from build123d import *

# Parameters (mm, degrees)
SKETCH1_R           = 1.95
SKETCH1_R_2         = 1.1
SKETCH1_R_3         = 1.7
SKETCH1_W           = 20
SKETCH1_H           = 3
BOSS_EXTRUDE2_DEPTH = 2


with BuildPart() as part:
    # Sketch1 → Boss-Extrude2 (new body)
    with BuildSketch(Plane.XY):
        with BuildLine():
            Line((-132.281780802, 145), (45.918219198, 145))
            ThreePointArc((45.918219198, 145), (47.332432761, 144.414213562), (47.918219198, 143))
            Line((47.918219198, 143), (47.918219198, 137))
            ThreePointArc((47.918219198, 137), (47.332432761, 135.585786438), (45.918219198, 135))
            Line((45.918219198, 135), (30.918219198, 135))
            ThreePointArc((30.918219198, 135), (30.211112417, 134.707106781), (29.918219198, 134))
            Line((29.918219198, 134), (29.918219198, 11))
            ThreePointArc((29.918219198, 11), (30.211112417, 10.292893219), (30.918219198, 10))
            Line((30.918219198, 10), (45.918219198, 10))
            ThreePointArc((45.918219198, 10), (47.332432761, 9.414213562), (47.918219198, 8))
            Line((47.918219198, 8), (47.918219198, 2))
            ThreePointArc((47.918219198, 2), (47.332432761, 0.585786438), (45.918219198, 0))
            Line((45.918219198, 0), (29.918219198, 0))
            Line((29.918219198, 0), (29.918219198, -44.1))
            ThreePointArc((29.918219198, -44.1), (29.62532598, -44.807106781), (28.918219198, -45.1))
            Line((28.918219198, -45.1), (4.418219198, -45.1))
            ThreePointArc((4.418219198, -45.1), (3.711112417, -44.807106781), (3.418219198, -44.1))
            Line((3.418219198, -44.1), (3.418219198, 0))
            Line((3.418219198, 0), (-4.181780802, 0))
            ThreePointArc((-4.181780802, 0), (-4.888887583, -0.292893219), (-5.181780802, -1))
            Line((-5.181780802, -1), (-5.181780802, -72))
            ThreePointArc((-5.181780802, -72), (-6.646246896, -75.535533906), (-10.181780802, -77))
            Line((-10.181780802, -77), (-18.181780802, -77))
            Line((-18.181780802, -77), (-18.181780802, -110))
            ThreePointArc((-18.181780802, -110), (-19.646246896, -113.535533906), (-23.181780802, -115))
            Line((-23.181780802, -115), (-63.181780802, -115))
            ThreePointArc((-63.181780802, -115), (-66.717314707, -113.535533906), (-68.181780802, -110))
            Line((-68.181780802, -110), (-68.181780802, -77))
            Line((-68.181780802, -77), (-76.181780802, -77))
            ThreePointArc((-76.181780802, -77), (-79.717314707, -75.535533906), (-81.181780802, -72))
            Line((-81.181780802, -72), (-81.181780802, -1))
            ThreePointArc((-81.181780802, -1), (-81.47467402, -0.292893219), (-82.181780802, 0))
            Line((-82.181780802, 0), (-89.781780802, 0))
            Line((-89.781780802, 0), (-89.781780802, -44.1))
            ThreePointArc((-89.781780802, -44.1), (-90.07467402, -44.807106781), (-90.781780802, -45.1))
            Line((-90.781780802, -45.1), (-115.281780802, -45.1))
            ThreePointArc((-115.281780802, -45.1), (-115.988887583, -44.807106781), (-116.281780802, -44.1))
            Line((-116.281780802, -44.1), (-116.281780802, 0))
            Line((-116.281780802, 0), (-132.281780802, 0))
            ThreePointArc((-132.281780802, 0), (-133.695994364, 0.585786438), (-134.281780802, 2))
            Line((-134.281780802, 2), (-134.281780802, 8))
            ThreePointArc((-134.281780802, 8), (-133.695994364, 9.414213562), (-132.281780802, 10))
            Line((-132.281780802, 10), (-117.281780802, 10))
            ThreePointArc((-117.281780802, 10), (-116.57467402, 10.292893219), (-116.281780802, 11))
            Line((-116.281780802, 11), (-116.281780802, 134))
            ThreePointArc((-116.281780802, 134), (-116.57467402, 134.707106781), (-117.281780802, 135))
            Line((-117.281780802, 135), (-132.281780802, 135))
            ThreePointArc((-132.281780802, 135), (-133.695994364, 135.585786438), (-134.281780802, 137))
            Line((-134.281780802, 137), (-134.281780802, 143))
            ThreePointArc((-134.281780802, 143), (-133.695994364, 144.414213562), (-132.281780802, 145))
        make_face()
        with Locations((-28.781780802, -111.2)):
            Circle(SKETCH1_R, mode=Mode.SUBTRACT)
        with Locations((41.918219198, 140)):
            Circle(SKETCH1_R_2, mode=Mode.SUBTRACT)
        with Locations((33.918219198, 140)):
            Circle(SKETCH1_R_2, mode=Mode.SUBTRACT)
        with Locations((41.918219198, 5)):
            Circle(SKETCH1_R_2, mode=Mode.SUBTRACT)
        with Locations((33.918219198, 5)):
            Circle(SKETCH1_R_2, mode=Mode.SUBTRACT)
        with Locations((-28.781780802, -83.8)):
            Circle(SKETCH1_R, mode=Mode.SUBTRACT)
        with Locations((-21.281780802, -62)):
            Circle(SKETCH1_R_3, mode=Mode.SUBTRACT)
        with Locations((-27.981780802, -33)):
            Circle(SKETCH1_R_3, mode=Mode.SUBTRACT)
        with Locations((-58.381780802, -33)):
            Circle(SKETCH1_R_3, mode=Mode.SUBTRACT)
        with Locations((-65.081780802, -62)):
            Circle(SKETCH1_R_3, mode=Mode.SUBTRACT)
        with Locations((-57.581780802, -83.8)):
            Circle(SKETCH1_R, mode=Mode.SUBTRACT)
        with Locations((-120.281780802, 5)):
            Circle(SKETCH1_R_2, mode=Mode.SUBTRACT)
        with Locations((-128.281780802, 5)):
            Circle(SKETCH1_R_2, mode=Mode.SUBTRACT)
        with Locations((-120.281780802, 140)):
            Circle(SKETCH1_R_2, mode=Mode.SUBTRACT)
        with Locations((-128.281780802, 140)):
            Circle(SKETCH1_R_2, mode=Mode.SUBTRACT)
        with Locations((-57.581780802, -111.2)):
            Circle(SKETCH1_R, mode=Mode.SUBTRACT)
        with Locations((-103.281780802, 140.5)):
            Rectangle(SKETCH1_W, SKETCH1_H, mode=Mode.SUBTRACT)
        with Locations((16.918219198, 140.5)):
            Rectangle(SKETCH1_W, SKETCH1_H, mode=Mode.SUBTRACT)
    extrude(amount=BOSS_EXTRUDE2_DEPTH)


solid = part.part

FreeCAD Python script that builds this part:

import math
import FreeCAD as App
import Part
import Sketcher
from FreeCAD import Vector
Q = App.Units.Quantity

doc = App.newDocument("Part")
body = doc.addObject("PartDesign::Body", "Body")

sketch1 = body.newObject("Sketcher::SketchObject", "Sketch")
sketch1.AttachmentSupport = (doc.getObject("XY_Plane"), [""])
sketch1.MapMode = "FlatFace"
sketch1.addGeometry([
    Part.LineSegment(Vector(45.9, 145, 0), Vector(-132.3, 145, 0)),
    Part.ArcOfCircle(Part.Circle(Vector(-132.3, 143, 0), Vector(0, 0, 1), 2), math.radians(90), math.radians(180)),
    Part.LineSegment(Vector(-134.3, 143, 0), Vector(-134.3, 137, 0)),
    Part.ArcOfCircle(Part.Circle(Vector(-132.3, 137, 0), Vector(0, 0, 1), 2), math.radians(-180), math.radians(-90)),
    Part.LineSegment(Vector(-132.3, 135, 0), Vector(-117.3, 135, 0)),
    Part.ArcOfCircle(Part.Circle(Vector(-117.3, 134, 0), Vector(0, 0, 1), 1), math.radians(0), math.radians(90)),
    Part.LineSegment(Vector(-116.3, 134, 0), Vector(-116.3, 11, 0)),
    Part.ArcOfCircle(Part.Circle(Vector(-117.3, 11, 0), Vector(0, 0, 1), 1), math.radians(-90), math.radians(0)),
    Part.LineSegment(Vector(-117.3, 10, 0), Vector(-132.3, 10, 0)),
    Part.ArcOfCircle(Part.Circle(Vector(-132.3, 8, 0), Vector(0, 0, 1), 2), math.radians(90), math.radians(180)),
    Part.LineSegment(Vector(-134.3, 8, 0), Vector(-134.3, 2, 0)),
    Part.ArcOfCircle(Part.Circle(Vector(-132.3, 2, 0), Vector(0, 0, 1), 2), math.radians(-180), math.radians(-90)),
    Part.LineSegment(Vector(-132.3, 0, 0), Vector(-116.3, 0, 0)),
    Part.LineSegment(Vector(-116.3, 0, 0), Vector(-116.3, -44.1, 0)),
    Part.ArcOfCircle(Part.Circle(Vector(-115.3, -44.1, 0), Vector(0, 0, 1), 1), math.radians(-180), math.radians(-90)),
    Part.LineSegment(Vector(-115.3, -45.1, 0), Vector(-90.8, -45.1, 0)),
    Part.ArcOfCircle(Part.Circle(Vector(-90.8, -44.1, 0), Vector(0, 0, 1), 1), math.radians(-90), math.radians(0)),
    Part.LineSegment(Vector(-89.8, -44.1, 0), Vector(-89.8, 0, 0)),
    Part.LineSegment(Vector(-89.8, 0, 0), Vector(-82.2, 0, 0)),
    Part.ArcOfCircle(Part.Circle(Vector(-82.2, -1, 0), Vector(0, 0, 1), 1), math.radians(0), math.radians(90)),
    Part.LineSegment(Vector(-81.2, -1, 0), Vector(-81.2, -72, 0)),
    Part.ArcOfCircle(Part.Circle(Vector(-76.2, -72, 0), Vector(0, 0, 1), 5), math.radians(-180), math.radians(-90)),
    Part.LineSegment(Vector(-76.2, -77, 0), Vector(-68.2, -77, 0)),
    Part.LineSegment(Vector(-68.2, -77, 0), Vector(-68.2, -110, 0)),
    Part.ArcOfCircle(Part.Circle(Vector(-63.2, -110, 0), Vector(0, 0, 1), 5), math.radians(-180), math.radians(-90)),
    Part.LineSegment(Vector(-63.2, -115, 0), Vector(-23.2, -115, 0)),
    Part.ArcOfCircle(Part.Circle(Vector(-23.2, -110, 0), Vector(0, 0, 1), 5), math.radians(-90), math.radians(0)),
    Part.LineSegment(Vector(-18.2, -110, 0), Vector(-18.2, -77, 0)),
    Part.LineSegment(Vector(-18.2, -77, 0), Vector(-10.2, -77, 0)),
    Part.ArcOfCircle(Part.Circle(Vector(-10.2, -72, 0), Vector(0, 0, 1), 5), math.radians(-90), math.radians(0)),
    Part.LineSegment(Vector(-5.2, -72, 0), Vector(-5.2, -1, 0)),
    Part.ArcOfCircle(Part.Circle(Vector(-4.2, -1, 0), Vector(0, 0, 1), 1), math.radians(90), math.radians(180)),
    Part.LineSegment(Vector(-4.2, 0, 0), Vector(3.4, 0, 0)),
    Part.LineSegment(Vector(3.4, 0, 0), Vector(3.4, -44.1, 0)),
    Part.ArcOfCircle(Part.Circle(Vector(4.4, -44.1, 0), Vector(0, 0, 1), 1), math.radians(-180), math.radians(-90)),
    Part.LineSegment(Vector(4.4, -45.1, 0), Vector(28.9, -45.1, 0)),
    Part.ArcOfCircle(Part.Circle(Vector(28.9, -44.1, 0), Vector(0, 0, 1), 1), math.radians(-90), math.radians(0)),
    Part.LineSegment(Vector(29.9, -44.1, 0), Vector(29.9, 0, 0)),
    Part.LineSegment(Vector(29.9, 0, 0), Vector(45.9, 0, 0)),
    Part.ArcOfCircle(Part.Circle(Vector(45.9, 2, 0), Vector(0, 0, 1), 2), math.radians(-90), math.radians(0)),
    Part.LineSegment(Vector(47.9, 2, 0), Vector(47.9, 8, 0)),
    Part.ArcOfCircle(Part.Circle(Vector(45.9, 8, 0), Vector(0, 0, 1), 2), math.radians(0), math.radians(90)),
    Part.LineSegment(Vector(45.9, 10, 0), Vector(30.9, 10, 0)),
    Part.ArcOfCircle(Part.Circle(Vector(30.9, 11, 0), Vector(0, 0, 1), 1), math.radians(-180), math.radians(-90)),
    Part.LineSegment(Vector(29.9, 11, 0), Vector(29.9, 134, 0)),
    Part.ArcOfCircle(Part.Circle(Vector(30.9, 134, 0), Vector(0, 0, 1), 1), math.radians(90), math.radians(180)),
    Part.LineSegment(Vector(30.9, 135, 0), Vector(45.9, 135, 0)),
    Part.ArcOfCircle(Part.Circle(Vector(45.9, 137, 0), Vector(0, 0, 1), 2), math.radians(-90), math.radians(0)),
    Part.LineSegment(Vector(47.9, 137, 0), Vector(47.9, 143, 0)),
    Part.ArcOfCircle(Part.Circle(Vector(45.9, 143, 0), Vector(0, 0, 1), 2), math.radians(0), math.radians(90)),
    Part.Circle(Vector(-28.8, -111.2, 0), Vector(0, 0, 1), 1.9),
    Part.Circle(Vector(-28.8, -83.8, 0), Vector(0, 0, 1), 1.9),
    Part.Circle(Vector(-21.3, -62, 0), Vector(0, 0, 1), 1.7),
    Part.Circle(Vector(41.9, 5, 0), Vector(0, 0, 1), 1.1),
    Part.Circle(Vector(33.9, 5, 0), Vector(0, 0, 1), 1.1),
    Part.Circle(Vector(-28, -33, 0), Vector(0, 0, 1), 1.7),
    Part.Circle(Vector(-57.6, -111.2, 0), Vector(0, 0, 1), 1.9),
    Part.Circle(Vector(-57.6, -83.8, 0), Vector(0, 0, 1), 1.9),
    Part.Circle(Vector(-65.1, -62, 0), Vector(0, 0, 1), 1.7),
    Part.Circle(Vector(-58.4, -33, 0), Vector(0, 0, 1), 1.7),
    Part.Circle(Vector(-120.3, 5, 0), Vector(0, 0, 1), 1.1),
    Part.Circle(Vector(-128.3, 5, 0), Vector(0, 0, 1), 1.1),
    Part.Circle(Vector(41.9, 140, 0), Vector(0, 0, 1), 1.1),
    Part.Circle(Vector(33.9, 140, 0), Vector(0, 0, 1), 1.1),
    Part.LineSegment(Vector(6.9, 139, 0), Vector(6.9, 142, 0)),
    Part.LineSegment(Vector(6.9, 142, 0), Vector(26.9, 142, 0)),
    Part.LineSegment(Vector(26.9, 142, 0), Vector(26.9, 139, 0)),
    Part.LineSegment(Vector(26.9, 139, 0), Vector(6.9, 139, 0)),
    Part.LineSegment(Vector(-113.3, 139, 0), Vector(-113.3, 142, 0)),
    Part.LineSegment(Vector(-113.3, 142, 0), Vector(-93.3, 142, 0)),
    Part.LineSegment(Vector(-93.3, 142, 0), Vector(-93.3, 139, 0)),
    Part.LineSegment(Vector(-93.3, 139, 0), Vector(-113.3, 139, 0)),
    Part.Circle(Vector(-120.3, 140, 0), Vector(0, 0, 1), 1.1),
    Part.Circle(Vector(-128.3, 140, 0), Vector(0, 0, 1), 1.1),
], False)
sketch1.addConstraint([
    Sketcher.Constraint("Tangent", 0, 2, 1, 1),
    Sketcher.Constraint("Tangent", 1, 2, 2, 1),
    Sketcher.Constraint("Tangent", 2, 2, 3, 1),
    Sketcher.Constraint("Tangent", 3, 2, 4, 1),
    Sketcher.Constraint("Tangent", 4, 2, 5, 2),
    Sketcher.Constraint("Tangent", 5, 1, 6, 1),
    Sketcher.Constraint("Tangent", 6, 2, 7, 2),
    Sketcher.Constraint("Tangent", 7, 1, 8, 1),
    Sketcher.Constraint("Tangent", 8, 2, 9, 1),
    Sketcher.Constraint("Tangent", 9, 2, 10, 1),
    Sketcher.Constraint("Tangent", 10, 2, 11, 1),
    Sketcher.Constraint("Tangent", 11, 2, 12, 1),
    Sketcher.Constraint("Coincident", 12, 2, 13, 1),
    Sketcher.Constraint("Tangent", 13, 2, 14, 1),
    Sketcher.Constraint("Tangent", 14, 2, 15, 1),
    Sketcher.Constraint("Tangent", 15, 2, 16, 1),
    Sketcher.Constraint("Tangent", 16, 2, 17, 1),
    Sketcher.Constraint("Coincident", 17, 2, 18, 1),
    Sketcher.Constraint("Tangent", 18, 2, 19, 2),
    Sketcher.Constraint("Tangent", 19, 1, 20, 1),
    Sketcher.Constraint("Tangent", 20, 2, 21, 1),
    Sketcher.Constraint("Tangent", 21, 2, 22, 1),
    Sketcher.Constraint("Coincident", 22, 2, 23, 1),
    Sketcher.Constraint("Tangent", 23, 2, 24, 1),
    Sketcher.Constraint("Tangent", 24, 2, 25, 1),
    Sketcher.Constraint("Tangent", 25, 2, 26, 1),
    Sketcher.Constraint("Tangent", 26, 2, 27, 1),
    Sketcher.Constraint("Coincident", 27, 2, 28, 1),
    Sketcher.Constraint("Tangent", 28, 2, 29, 1),
    Sketcher.Constraint("Tangent", 29, 2, 30, 1),
    Sketcher.Constraint("Tangent", 30, 2, 31, 2),
    Sketcher.Constraint("Tangent", 31, 1, 32, 1),
    Sketcher.Constraint("Coincident", 32, 2, 33, 1),
    Sketcher.Constraint("Tangent", 33, 2, 34, 1),
    Sketcher.Constraint("Tangent", 34, 2, 35, 1),
    Sketcher.Constraint("Tangent", 35, 2, 36, 1),
    Sketcher.Constraint("Tangent", 36, 2, 37, 1),
    Sketcher.Constraint("Coincident", 37, 2, 38, 1),
    Sketcher.Constraint("Tangent", 38, 2, 39, 1),
    Sketcher.Constraint("Tangent", 39, 2, 40, 1),
    Sketcher.Constraint("Tangent", 40, 2, 41, 1),
    Sketcher.Constraint("Tangent", 41, 2, 42, 1),
    Sketcher.Constraint("Tangent", 42, 2, 43, 2),
    Sketcher.Constraint("Tangent", 43, 1, 44, 1),
    Sketcher.Constraint("Tangent", 44, 2, 45, 2),
    Sketcher.Constraint("Tangent", 45, 1, 46, 1),
    Sketcher.Constraint("Tangent", 46, 2, 47, 1),
    Sketcher.Constraint("Tangent", 47, 2, 48, 1),
    Sketcher.Constraint("Tangent", 48, 2, 49, 1),
    Sketcher.Constraint("Tangent", 49, 2, 0, 1),
    Sketcher.Constraint("Coincident", 64, 2, 65, 1),
    Sketcher.Constraint("Coincident", 65, 2, 66, 1),
    Sketcher.Constraint("Coincident", 66, 2, 67, 1),
    Sketcher.Constraint("Coincident", 67, 2, 64, 1),
    Sketcher.Constraint("Coincident", 68, 2, 69, 1),
    Sketcher.Constraint("Coincident", 69, 2, 70, 1),
    Sketcher.Constraint("Coincident", 70, 2, 71, 1),
    Sketcher.Constraint("Coincident", 71, 2, 68, 1),
    Sketcher.Constraint("Horizontal", 0),
    Sketcher.Constraint("Vertical", 2),
    Sketcher.Constraint("Horizontal", 4),
    Sketcher.Constraint("Vertical", 6),
    Sketcher.Constraint("Horizontal", 8),
    Sketcher.Constraint("Vertical", 10),
    Sketcher.Constraint("Horizontal", 12),
    Sketcher.Constraint("Vertical", 13),
    Sketcher.Constraint("Horizontal", 15),
    Sketcher.Constraint("Vertical", 17),
    Sketcher.Constraint("Horizontal", 18),
    Sketcher.Constraint("Vertical", 20),
    Sketcher.Constraint("Horizontal", 22),
    Sketcher.Constraint("Vertical", 23),
    Sketcher.Constraint("Horizontal", 25),
    Sketcher.Constraint("Vertical", 27),
    Sketcher.Constraint("Horizontal", 28),
    Sketcher.Constraint("Vertical", 30),
    Sketcher.Constraint("Horizontal", 32),
    Sketcher.Constraint("Vertical", 33),
    Sketcher.Constraint("Horizontal", 35),
    Sketcher.Constraint("Vertical", 37),
    Sketcher.Constraint("Horizontal", 38),
    Sketcher.Constraint("Vertical", 40),
    Sketcher.Constraint("Horizontal", 42),
    Sketcher.Constraint("Vertical", 44),
    Sketcher.Constraint("Horizontal", 46),
    Sketcher.Constraint("Vertical", 48),
    Sketcher.Constraint("Vertical", 64),
    Sketcher.Constraint("Horizontal", 65),
    Sketcher.Constraint("Vertical", 66),
    Sketcher.Constraint("Horizontal", 67),
    Sketcher.Constraint("Vertical", 68),
    Sketcher.Constraint("Horizontal", 69),
    Sketcher.Constraint("Vertical", 70),
    Sketcher.Constraint("Horizontal", 71),
    Sketcher.Constraint("Equal", 1, 3),
    Sketcher.Constraint("Equal", 5, 7),
    Sketcher.Constraint("Equal", 3, 9),
    Sketcher.Constraint("Equal", 9, 11),
    Sketcher.Constraint("Equal", 7, 14),
    Sketcher.Constraint("Equal", 14, 16),
    Sketcher.Constraint("Equal", 16, 19),
    Sketcher.Constraint("Equal", 21, 24),
    Sketcher.Constraint("Equal", 24, 26),
    Sketcher.Constraint("Equal", 26, 29),
    Sketcher.Constraint("Equal", 19, 31),
    Sketcher.Constraint("Equal", 31, 34),
    Sketcher.Constraint("Equal", 34, 36),
    Sketcher.Constraint("Equal", 11, 39),
    Sketcher.Constraint("Equal", 39, 41),
    Sketcher.Constraint("Equal", 36, 43),
    Sketcher.Constraint("Equal", 43, 45),
    Sketcher.Constraint("Equal", 41, 47),
    Sketcher.Constraint("Equal", 47, 49),
    Sketcher.Constraint("Equal", 50, 51),
    Sketcher.Constraint("Equal", 53, 54),
    Sketcher.Constraint("Equal", 52, 55),
    Sketcher.Constraint("Equal", 51, 56),
    Sketcher.Constraint("Equal", 56, 57),
    Sketcher.Constraint("Equal", 55, 58),
    Sketcher.Constraint("Equal", 58, 59),
    Sketcher.Constraint("Equal", 54, 60),
    Sketcher.Constraint("Equal", 60, 61),
    Sketcher.Constraint("Equal", 61, 62),
    Sketcher.Constraint("Equal", 62, 63),
    Sketcher.Constraint("Equal", 63, 72),
    Sketcher.Constraint("Equal", 72, 73),
    Sketcher.Constraint("PointOnObject", 11, 2, -1),
    Sketcher.Constraint("PointOnObject", 17, 2, -1),
    Sketcher.Constraint("PointOnObject", 31, 1, -1),
    Sketcher.Constraint("PointOnObject", 37, 2, -1),
    Sketcher.Constraint("Horizontal", 21, 3, 29, 3),
    Sketcher.Constraint("Horizontal", 16, 3, 34, 3),
    Sketcher.Constraint("Horizontal", 9, 3, 41, 3),
    Sketcher.Constraint("Horizontal", 5, 3, 45, 3),
    Sketcher.Constraint("Horizontal", 53, 3, 54, 3),
    Sketcher.Constraint("Horizontal", 50, 3, 56, 3),
    Sketcher.Constraint("Horizontal", 51, 3, 57, 3),
    Sketcher.Constraint("Horizontal", 52, 3, 58, 3),
    Sketcher.Constraint("Horizontal", 55, 3, 59, 3),
    Sketcher.Constraint("Horizontal", 54, 3, 60, 3),
    Sketcher.Constraint("Horizontal", 60, 3, 61, 3),
    Sketcher.Constraint("Horizontal", 62, 3, 63, 3),
    Sketcher.Constraint("Horizontal", 63, 3, 72, 3),
    Sketcher.Constraint("Horizontal", 72, 3, 73, 3),
    Sketcher.Constraint("Horizontal", 65, 2, 68, 2),
    Sketcher.Constraint("Horizontal", 67, 2, 70, 2),
    Sketcher.Constraint("Vertical", 3, 3, 9, 3),
    Sketcher.Constraint("Vertical", 41, 3, 47, 3),
    Sketcher.Constraint("Vertical", 50, 3, 51, 3),
    Sketcher.Constraint("Vertical", 56, 3, 57, 3),
    Sketcher.Constraint("Vertical", 53, 3, 62, 3),
    Sketcher.Constraint("Vertical", 54, 3, 63, 3),
    Sketcher.Constraint("Vertical", 60, 3, 72, 3),
    Sketcher.Constraint("Vertical", 61, 3, 73, 3),
    Sketcher.Constraint("Vertical", 6, 2, 12, 2),
    Sketcher.Constraint("Vertical", 37, 2, 43, 1),
    Sketcher.Constraint("Equal", 22, 28),
    Sketcher.Constraint("Equal", 18, 32),
    Sketcher.Constraint("Equal", 15, 35),
    Sketcher.Constraint("Equal", 12, 38),
    Sketcher.Constraint("Equal", 67, 69),
    Sketcher.Constraint("Equal", 2, 10),
    Sketcher.Constraint("Radius", 1, Q("2 mm")),
    Sketcher.Constraint("Radius", 5, Q("1 mm")),
    Sketcher.Constraint("Radius", 21, Q("5 mm")),
    Sketcher.Constraint("Diameter", 50, Q("3.9 mm")),
    Sketcher.Constraint("Diameter", 52, Q("3.4 mm")),
    Sketcher.Constraint("Diameter", 53, Q("2.2 mm")),
    Sketcher.Constraint("DistanceX", 4, 1, 4, 2, Q("15 mm")),
    Sketcher.Constraint("DistanceX", 22, 1, 22, 2, Q("8 mm")),
    Sketcher.Constraint("DistanceX", 25, 1, 25, 2, Q("40 mm")),
    Sketcher.Constraint("DistanceX", 65, 1, 65, 2, Q("20 mm")),
    Sketcher.Constraint("DistanceY", 2, 2, 2, 1, Q("6 mm")),
    Sketcher.Constraint("DistanceY", 6, 2, 6, 1, Q("123 mm")),
    Sketcher.Constraint("DistanceY", 20, 2, 20, 1, Q("71 mm")),
    Sketcher.Constraint("DistanceY", 23, 2, 23, 1, Q("33 mm")),
    Sketcher.Constraint("DistanceY", 64, 1, 64, 2, Q("3 mm")),
    Sketcher.Constraint("DistanceX", 0, 2, 0, 1, Q("178.2 mm")),
    Sketcher.Constraint("DistanceX", 15, 1, 15, 2, Q("24.5 mm")),
    Sketcher.Constraint("DistanceY", 13, 2, 13, 1, Q("44.1 mm")),
    Sketcher.Constraint("DistanceY", 52, 3, -1, 1, Q("62 mm")),
    Sketcher.Constraint("DistanceY", -1, 1, 53, 3, Q("5 mm")),
    Sketcher.Constraint("DistanceY", 55, 3, -1, 1, Q("33 mm")),
    Sketcher.Constraint("DistanceY", -1, 1, 62, 3, Q("140 mm")),
    Sketcher.Constraint("DistanceY", -1, 1, 64, 2, Q("142 mm")),
    Sketcher.Constraint("DistanceY", 50, 3, -1, 1, Q("111.2 mm")),
    Sketcher.Constraint("DistanceY", 51, 3, -1, 1, Q("83.8 mm")),
    Sketcher.Constraint("DistanceX", 1, 3, -1, 1, Q("132.281781 mm")),
    Sketcher.Constraint("DistanceX", 50, 3, -1, 1, Q("28.781781 mm")),
    Sketcher.Constraint("DistanceX", 52, 3, -1, 1, Q("21.281781 mm")),
    Sketcher.Constraint("DistanceX", -1, 1, 53, 3, Q("41.918219 mm")),
    Sketcher.Constraint("DistanceX", -1, 1, 54, 3, Q("33.918219 mm")),
    Sketcher.Constraint("DistanceX", 55, 3, -1, 1, Q("27.981781 mm")),
    Sketcher.Constraint("DistanceX", 56, 3, -1, 1, Q("57.581781 mm")),
    Sketcher.Constraint("DistanceX", 58, 3, -1, 1, Q("65.081781 mm")),
    Sketcher.Constraint("DistanceX", 59, 3, -1, 1, Q("58.381781 mm")),
    Sketcher.Constraint("DistanceX", 60, 3, -1, 1, Q("120.281781 mm")),
    Sketcher.Constraint("DistanceX", 61, 3, -1, 1, Q("128.281781 mm")),
    Sketcher.Constraint("DistanceX", -1, 1, 64, 2, Q("6.918219 mm")),
    Sketcher.Constraint("DistanceX", 68, 2, -1, 1, Q("113.281781 mm")),
])
pad1 = body.newObject("PartDesign::Pad", "Pad")
pad1.Profile = sketch1
pad1.Length = 2

doc.recompute()
